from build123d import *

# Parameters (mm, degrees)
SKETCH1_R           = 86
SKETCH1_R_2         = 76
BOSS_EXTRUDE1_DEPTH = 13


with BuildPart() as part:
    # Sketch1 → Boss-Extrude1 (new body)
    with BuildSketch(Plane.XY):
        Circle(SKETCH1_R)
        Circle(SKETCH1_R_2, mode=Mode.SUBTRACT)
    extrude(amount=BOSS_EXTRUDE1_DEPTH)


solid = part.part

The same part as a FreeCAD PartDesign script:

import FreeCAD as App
import Part
import Sketcher
Q = App.Units.Quantity

doc = App.newDocument("Part")
body = doc.addObject("PartDesign::Body", "Body")

# Sketch on XY plane
sketch1 = doc.addObject("Sketcher::SketchObject", "Sketch")
body.addObject(sketch1)
sketch1.AttachmentSupport = (doc.XY_Plane, [""])
sketch1.MapMode = "FlatFace"
sketch1.addGeometry(Part.Circle(App.Vector(0, 0, 0), App.Vector(0, 0, 1), 86), False)
sketch1.addGeometry(Part.Circle(App.Vector(0, 0, 0), App.Vector(0, 0, 1), 76), False)
sketch1.addConstraint(Sketcher.Constraint("Coincident", 0, 3, -1, 1))
sketch1.addConstraint(Sketcher.Constraint("Coincident", 1, 3, -1, 1))
sketch1.addConstraint(Sketcher.Constraint("Diameter", 0, Q("172 mm")))
sketch1.addConstraint(Sketcher.Constraint("Diameter", 1, Q("152 mm")))
pad1 = doc.addObject("PartDesign::Pad", "Pad")
body.addObject(pad1)
pad1.Profile = sketch1
pad1.Length = 13

doc.recompute()
